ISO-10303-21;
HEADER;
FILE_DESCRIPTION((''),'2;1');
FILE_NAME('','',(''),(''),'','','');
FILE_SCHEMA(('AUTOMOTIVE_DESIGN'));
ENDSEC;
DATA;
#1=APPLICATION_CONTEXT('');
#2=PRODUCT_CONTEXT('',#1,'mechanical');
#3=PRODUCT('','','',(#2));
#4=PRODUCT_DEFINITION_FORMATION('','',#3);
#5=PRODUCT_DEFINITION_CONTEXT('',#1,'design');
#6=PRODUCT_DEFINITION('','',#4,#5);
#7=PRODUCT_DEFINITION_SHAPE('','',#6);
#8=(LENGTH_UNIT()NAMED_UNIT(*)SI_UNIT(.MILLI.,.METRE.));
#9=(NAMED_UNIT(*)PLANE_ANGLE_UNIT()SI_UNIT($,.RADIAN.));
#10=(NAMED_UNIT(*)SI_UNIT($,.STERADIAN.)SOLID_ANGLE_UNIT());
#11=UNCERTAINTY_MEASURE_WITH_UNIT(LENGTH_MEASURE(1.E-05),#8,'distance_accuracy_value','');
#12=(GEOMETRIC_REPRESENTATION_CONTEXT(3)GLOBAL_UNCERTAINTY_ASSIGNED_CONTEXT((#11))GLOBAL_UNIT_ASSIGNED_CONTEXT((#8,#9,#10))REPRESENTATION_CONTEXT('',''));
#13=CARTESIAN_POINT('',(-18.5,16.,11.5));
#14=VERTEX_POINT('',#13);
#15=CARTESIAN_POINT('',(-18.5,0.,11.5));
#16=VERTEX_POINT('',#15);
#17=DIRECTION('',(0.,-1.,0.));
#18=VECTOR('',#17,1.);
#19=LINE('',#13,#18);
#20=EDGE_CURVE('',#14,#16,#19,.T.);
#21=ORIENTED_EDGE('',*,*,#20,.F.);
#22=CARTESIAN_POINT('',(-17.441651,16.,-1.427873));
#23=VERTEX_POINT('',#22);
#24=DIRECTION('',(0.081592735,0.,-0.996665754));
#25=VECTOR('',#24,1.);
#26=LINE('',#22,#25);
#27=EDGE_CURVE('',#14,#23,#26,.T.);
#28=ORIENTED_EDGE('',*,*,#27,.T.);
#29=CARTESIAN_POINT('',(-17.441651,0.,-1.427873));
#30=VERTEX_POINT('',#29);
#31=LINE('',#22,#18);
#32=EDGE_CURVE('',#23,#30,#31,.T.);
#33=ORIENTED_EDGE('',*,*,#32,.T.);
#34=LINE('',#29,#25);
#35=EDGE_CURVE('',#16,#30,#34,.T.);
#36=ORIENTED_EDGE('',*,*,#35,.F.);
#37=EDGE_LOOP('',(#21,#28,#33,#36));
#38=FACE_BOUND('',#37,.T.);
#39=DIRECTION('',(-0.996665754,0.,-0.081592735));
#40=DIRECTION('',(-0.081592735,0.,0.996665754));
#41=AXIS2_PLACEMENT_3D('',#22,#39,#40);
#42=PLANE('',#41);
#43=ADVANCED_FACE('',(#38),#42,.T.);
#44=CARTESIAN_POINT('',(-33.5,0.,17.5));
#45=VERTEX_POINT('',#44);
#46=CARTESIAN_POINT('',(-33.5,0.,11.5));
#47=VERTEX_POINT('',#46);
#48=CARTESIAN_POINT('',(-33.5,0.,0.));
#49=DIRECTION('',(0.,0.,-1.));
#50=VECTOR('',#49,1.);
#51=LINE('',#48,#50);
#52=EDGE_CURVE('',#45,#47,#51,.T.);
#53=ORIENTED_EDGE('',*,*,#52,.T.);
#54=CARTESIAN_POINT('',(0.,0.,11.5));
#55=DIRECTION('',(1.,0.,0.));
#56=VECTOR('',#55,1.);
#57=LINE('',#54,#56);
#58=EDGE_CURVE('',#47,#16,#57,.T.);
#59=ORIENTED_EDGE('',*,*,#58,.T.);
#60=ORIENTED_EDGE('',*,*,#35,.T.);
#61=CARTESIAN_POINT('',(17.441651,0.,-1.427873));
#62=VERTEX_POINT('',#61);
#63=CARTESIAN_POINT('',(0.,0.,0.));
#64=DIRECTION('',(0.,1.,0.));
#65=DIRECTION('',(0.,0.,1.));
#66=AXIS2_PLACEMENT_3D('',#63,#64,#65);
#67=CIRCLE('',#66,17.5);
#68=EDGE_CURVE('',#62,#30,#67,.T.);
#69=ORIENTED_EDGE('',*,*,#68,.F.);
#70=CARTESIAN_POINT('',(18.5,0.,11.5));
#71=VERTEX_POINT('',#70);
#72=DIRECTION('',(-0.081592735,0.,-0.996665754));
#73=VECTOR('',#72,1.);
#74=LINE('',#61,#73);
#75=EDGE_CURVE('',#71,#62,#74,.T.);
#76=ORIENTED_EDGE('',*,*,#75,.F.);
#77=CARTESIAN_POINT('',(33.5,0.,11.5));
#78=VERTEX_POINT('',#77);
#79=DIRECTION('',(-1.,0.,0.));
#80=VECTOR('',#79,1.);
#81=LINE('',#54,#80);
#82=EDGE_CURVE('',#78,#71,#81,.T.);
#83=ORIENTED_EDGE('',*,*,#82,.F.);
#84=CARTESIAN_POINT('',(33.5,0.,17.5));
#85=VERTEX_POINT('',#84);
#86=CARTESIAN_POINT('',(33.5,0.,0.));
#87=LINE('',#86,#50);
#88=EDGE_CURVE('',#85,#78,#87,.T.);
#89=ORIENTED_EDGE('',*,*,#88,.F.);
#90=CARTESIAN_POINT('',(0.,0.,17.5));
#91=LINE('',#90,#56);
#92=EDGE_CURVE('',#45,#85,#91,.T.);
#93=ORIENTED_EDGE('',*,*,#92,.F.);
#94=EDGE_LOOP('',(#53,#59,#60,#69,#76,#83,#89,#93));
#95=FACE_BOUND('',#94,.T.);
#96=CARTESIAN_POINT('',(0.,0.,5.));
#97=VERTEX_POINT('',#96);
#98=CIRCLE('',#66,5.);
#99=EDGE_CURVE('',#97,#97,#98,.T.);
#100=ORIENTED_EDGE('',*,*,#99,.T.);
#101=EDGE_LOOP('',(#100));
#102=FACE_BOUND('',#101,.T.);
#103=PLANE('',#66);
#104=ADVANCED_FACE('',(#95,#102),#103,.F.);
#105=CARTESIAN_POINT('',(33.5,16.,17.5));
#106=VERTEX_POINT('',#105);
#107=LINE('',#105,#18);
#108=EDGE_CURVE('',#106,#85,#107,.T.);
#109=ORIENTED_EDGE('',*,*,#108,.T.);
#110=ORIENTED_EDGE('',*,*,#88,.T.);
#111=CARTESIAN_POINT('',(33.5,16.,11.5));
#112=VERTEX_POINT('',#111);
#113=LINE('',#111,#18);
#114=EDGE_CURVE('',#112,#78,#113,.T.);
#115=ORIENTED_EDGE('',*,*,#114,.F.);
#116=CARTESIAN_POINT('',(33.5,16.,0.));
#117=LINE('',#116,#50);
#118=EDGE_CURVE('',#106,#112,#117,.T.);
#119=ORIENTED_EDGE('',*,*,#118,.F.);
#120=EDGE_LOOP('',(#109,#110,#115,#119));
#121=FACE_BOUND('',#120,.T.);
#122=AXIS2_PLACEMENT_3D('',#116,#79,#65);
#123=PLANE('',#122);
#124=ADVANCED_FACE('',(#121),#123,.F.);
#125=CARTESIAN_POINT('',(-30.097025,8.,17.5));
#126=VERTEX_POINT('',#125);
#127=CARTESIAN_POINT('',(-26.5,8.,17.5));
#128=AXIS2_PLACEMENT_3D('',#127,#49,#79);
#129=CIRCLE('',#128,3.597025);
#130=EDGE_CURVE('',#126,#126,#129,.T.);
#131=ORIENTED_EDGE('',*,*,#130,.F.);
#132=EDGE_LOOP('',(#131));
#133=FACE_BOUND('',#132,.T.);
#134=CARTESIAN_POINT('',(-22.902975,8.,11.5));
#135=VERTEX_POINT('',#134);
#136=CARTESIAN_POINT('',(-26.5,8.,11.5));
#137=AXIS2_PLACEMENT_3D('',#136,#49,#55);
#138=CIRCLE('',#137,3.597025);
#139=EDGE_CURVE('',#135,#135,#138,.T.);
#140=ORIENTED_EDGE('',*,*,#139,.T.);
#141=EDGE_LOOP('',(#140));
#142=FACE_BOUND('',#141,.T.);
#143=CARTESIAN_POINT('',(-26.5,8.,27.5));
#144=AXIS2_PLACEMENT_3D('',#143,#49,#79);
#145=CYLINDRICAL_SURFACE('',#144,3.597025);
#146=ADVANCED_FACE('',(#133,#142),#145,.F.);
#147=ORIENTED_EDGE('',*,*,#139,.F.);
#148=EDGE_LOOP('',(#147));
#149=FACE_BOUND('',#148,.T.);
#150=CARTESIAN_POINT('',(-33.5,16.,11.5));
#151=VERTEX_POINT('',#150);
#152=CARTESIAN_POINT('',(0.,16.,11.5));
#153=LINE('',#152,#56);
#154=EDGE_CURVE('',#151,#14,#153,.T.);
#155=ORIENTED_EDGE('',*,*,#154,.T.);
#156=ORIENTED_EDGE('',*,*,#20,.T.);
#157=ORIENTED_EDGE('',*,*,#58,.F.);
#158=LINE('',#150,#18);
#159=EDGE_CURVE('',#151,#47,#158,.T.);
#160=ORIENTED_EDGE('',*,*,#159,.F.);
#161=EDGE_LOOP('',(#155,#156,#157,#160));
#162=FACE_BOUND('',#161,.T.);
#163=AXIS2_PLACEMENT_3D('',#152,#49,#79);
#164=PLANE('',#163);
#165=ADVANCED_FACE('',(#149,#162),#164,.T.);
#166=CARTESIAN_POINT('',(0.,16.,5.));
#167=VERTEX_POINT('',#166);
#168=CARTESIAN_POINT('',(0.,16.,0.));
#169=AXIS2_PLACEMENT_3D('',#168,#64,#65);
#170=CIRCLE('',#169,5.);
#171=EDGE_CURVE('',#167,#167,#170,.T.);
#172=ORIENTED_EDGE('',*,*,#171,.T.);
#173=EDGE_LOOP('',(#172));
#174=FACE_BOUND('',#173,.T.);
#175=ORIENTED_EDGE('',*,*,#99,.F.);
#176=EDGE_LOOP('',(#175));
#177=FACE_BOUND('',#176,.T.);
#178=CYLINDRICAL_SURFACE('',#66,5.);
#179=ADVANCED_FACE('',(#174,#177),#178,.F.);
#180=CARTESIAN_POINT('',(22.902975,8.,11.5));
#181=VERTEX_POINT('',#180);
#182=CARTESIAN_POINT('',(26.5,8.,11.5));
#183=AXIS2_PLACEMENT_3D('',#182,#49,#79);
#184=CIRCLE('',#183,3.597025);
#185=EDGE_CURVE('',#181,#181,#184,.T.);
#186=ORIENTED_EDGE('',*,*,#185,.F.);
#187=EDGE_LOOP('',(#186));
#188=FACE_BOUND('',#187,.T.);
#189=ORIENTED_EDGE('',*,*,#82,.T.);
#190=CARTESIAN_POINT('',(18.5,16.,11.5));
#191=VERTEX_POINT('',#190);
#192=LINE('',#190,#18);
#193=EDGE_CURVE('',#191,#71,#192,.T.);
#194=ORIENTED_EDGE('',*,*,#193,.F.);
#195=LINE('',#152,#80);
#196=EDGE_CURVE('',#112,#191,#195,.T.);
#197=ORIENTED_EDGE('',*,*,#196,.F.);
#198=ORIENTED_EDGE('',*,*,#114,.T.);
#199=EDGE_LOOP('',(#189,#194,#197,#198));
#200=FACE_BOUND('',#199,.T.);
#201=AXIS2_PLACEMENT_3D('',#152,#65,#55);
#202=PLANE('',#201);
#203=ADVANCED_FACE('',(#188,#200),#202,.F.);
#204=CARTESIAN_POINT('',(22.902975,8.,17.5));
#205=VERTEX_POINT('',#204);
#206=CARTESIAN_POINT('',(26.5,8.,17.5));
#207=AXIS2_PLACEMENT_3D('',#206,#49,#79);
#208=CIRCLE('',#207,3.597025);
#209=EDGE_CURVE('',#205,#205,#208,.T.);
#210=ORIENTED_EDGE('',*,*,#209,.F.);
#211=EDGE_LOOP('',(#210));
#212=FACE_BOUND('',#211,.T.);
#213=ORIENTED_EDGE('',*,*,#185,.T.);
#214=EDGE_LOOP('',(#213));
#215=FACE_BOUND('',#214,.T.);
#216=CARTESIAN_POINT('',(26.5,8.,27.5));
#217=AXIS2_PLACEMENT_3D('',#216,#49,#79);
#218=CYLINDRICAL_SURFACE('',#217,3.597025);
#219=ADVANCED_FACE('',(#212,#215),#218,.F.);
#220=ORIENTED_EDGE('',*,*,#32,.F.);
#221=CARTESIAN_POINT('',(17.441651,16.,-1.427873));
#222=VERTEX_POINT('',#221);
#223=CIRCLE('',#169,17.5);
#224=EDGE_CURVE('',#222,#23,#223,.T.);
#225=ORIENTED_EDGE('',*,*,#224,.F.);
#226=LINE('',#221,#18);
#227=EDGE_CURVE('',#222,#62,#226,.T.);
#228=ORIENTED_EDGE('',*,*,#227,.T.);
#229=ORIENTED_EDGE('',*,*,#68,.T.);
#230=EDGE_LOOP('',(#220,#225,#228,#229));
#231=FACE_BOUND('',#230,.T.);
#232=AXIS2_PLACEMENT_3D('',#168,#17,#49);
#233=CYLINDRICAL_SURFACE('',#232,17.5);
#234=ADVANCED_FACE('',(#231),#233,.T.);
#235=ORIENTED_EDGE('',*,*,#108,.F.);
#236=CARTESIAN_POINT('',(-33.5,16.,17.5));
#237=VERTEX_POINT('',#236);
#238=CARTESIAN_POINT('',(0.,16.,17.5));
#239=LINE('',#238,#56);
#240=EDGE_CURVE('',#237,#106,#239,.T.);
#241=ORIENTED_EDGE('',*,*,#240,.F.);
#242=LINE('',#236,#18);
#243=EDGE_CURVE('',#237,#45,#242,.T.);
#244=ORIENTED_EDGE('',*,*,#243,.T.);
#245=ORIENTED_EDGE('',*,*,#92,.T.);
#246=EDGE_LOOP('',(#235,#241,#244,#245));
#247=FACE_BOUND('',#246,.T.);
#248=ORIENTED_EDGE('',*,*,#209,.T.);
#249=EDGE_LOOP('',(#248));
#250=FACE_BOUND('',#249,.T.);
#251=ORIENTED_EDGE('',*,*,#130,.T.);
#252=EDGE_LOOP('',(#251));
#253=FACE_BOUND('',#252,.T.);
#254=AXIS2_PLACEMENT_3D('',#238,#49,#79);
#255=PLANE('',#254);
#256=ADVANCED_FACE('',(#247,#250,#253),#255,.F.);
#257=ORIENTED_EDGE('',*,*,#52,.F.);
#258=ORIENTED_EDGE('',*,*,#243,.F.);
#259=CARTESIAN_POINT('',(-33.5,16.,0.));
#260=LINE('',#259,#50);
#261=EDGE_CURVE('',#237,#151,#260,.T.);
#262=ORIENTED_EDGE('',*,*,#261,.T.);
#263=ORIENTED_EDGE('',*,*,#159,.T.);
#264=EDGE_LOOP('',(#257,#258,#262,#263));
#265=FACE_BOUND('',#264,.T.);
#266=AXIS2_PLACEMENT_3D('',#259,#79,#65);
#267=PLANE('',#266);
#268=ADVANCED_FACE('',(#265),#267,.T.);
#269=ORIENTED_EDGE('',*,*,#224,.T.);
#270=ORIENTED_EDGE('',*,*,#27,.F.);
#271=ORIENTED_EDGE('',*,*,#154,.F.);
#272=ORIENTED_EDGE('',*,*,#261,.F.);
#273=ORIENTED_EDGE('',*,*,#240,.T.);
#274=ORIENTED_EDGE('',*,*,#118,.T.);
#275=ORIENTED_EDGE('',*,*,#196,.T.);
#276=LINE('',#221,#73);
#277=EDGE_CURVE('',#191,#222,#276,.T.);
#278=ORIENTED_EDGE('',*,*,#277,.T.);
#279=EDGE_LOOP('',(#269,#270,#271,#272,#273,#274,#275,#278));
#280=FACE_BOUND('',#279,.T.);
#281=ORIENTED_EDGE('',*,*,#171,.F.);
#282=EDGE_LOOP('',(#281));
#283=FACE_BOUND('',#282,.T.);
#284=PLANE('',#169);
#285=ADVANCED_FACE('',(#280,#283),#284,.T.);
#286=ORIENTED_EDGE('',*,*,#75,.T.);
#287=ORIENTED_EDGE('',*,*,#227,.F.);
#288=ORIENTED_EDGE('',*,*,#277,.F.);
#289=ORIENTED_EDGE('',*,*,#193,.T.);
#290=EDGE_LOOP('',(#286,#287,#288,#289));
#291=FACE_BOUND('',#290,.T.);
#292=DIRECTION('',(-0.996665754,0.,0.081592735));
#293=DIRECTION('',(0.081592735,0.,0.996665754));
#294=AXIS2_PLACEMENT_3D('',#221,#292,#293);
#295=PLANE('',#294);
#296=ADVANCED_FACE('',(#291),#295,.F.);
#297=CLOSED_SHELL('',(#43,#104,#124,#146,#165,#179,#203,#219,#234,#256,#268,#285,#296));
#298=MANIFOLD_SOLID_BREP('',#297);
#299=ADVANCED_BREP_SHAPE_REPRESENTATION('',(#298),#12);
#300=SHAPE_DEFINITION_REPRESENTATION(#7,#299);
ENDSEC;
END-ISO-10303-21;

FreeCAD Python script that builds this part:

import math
import FreeCAD as App
import Part
import Sketcher
from FreeCAD import Vector

doc = App.newDocument("Part")
body = doc.addObject("PartDesign::Body", "Body")

# Sketch on XZ plane
sketch1 = doc.addObject("Sketcher::SketchObject", "Sketch")
body.addObject(sketch1)
sketch1.AttachmentSupport = (doc.XZ_Plane, [""])
sketch1.MapMode = "FlatFace"
sketch1.addGeometry(Part.LineSegment(Vector(-17, -1, 0), Vector(-18, 12, 0)), False)
sketch1.addGeometry(Part.LineSegment(Vector(-18, 12, 0), Vector(-34, 12, 0)), False)
sketch1.addGeometry(Part.LineSegment(Vector(-34, 12, 0), Vector(-34, 18, 0)), False)
sketch1.addGeometry(Part.LineSegment(Vector(-34, 18, 0), Vector(34, 18, 0)), False)
sketch1.addGeometry(Part.LineSegment(Vector(34, 18, 0), Vector(34, 12, 0)), False)
sketch1.addGeometry(Part.LineSegment(Vector(34, 12, 0), Vector(18, 12, 0)), False)
sketch1.addGeometry(Part.LineSegment(Vector(18, 12, 0), Vector(17, -1, 0)), False)
sketch1.addGeometry(Part.ArcOfCircle(Part.Circle(Vector(0, 0, 0), Vector(0, 0, 1), 18), math.radians(-175), math.radians(-5)), False)
sketch1.addConstraint(Sketcher.Constraint("Coincident", 0, 2, 1, 1))
sketch1.addConstraint(Sketcher.Constraint("Coincident", 1, 2, 2, 1))
sketch1.addConstraint(Sketcher.Constraint("Coincident", 2, 2, 3, 1))
sketch1.addConstraint(Sketcher.Constraint("Coincident", 3, 2, 4, 1))
sketch1.addConstraint(Sketcher.Constraint("Coincident", 4, 2, 5, 1))
sketch1.addConstraint(Sketcher.Constraint("Coincident", 5, 2, 6, 1))
sketch1.addConstraint(Sketcher.Constraint("Tangent", 6, 2, 7, 2))
sketch1.addConstraint(Sketcher.Constraint("Tangent", 7, 1, 0, 1))
sketch1.addConstraint(Sketcher.Constraint("Horizontal", 1))
sketch1.addConstraint(Sketcher.Constraint("Vertical", 2))
sketch1.addConstraint(Sketcher.Constraint("Horizontal", 3))
sketch1.addConstraint(Sketcher.Constraint("Vertical", 4))
sketch1.addConstraint(Sketcher.Constraint("Horizontal", 5))
sketch1.addConstraint(Sketcher.Constraint("Coincident", 7, 3, -1, 1))
sketch1.addConstraint(Sketcher.Constraint("Symmetric", 1, 2, 4, 2, -2))
sketch1.addConstraint(Sketcher.Constraint("Horizontal", 6, 2, 7, 1))
sketch1.addConstraint(Sketcher.Constraint("Radius", 7, 17.5))
sketch1.addConstraint(Sketcher.Constraint("DistanceX", 1, 2, 1, 1, 15.0))
sketch1.addConstraint(Sketcher.Constraint("DistanceX", 3, 1, 3, 2, 67.0))
sketch1.addConstraint(Sketcher.Constraint("DistanceY", 2, 1, 2, 2, 6.0))
sketch1.addConstraint(Sketcher.Constraint("DistanceY", -1, 1, 0, 2, 11.5))
pad1 = doc.addObject("PartDesign::Pad", "Pad")
body.addObject(pad1)
pad1.Profile = sketch1
pad1.Length = 16
pad1.Reversed = True

# Sketch on XZ plane
sketch2 = doc.addObject("Sketcher::SketchObject", "Sketch001")
body.addObject(sketch2)
sketch2.AttachmentSupport = (doc.XZ_Plane, [""])
sketch2.MapMode = "FlatFace"
sketch2.AttachmentOffset = App.Placement(Vector(0, 0, -16), App.Rotation())
sketch2.addGeometry(Part.Circle(Vector(0, 0, 0), Vector(0, 0, 1), 5), False)
sketch2.addConstraint(Sketcher.Constraint("Coincident", 0, 3, -1, 1))
sketch2.addConstraint(Sketcher.Constraint("Diameter", 0, 10.0))
pocket1 = doc.addObject("PartDesign::Pocket", "Pocket")
body.addObject(pocket1)
pocket1.Profile = sketch2
pocket1.Length = 16
pocket1.Reversed = True

# Sketch on XY plane
sketch3 = doc.addObject("Sketcher::SketchObject", "Sketch002")
body.addObject(sketch3)
sketch3.AttachmentSupport = (doc.XY_Plane, [""])
sketch3.MapMode = "FlatFace"
sketch3.AttachmentOffset = App.Placement(Vector(0, 0, 11.5), App.Rotation())
sketch3.addGeometry(Part.Circle(Vector(26.5, 8, 0), Vector(0, 0, 1), 3.6), False)
sketch3.addGeometry(Part.Circle(Vector(-26.5, 8, 0), Vector(0, 0, 1), 3.6), False)
sketch3.addConstraint(Sketcher.Constraint("Equal", 0, 1))
sketch3.addConstraint(Sketcher.Constraint("Symmetric", 0, 3, 1, 3, -2))
sketch3.addConstraint(Sketcher.Constraint("DistanceY", -1, 1, 0, 3, 8.0))
sketch3.addConstraint(Sketcher.Constraint("DistanceX", 1, 3, 0, 3, 53.0))
sketch3.addConstraint(Sketcher.Constraint("Diameter", 0, 7.194049))
pocket2 = doc.addObject("PartDesign::Pocket", "Pocket001")
body.addObject(pocket2)
pocket2.Profile = sketch3
pocket2.Length = 16
pocket2.Reversed = True

doc.recompute()
